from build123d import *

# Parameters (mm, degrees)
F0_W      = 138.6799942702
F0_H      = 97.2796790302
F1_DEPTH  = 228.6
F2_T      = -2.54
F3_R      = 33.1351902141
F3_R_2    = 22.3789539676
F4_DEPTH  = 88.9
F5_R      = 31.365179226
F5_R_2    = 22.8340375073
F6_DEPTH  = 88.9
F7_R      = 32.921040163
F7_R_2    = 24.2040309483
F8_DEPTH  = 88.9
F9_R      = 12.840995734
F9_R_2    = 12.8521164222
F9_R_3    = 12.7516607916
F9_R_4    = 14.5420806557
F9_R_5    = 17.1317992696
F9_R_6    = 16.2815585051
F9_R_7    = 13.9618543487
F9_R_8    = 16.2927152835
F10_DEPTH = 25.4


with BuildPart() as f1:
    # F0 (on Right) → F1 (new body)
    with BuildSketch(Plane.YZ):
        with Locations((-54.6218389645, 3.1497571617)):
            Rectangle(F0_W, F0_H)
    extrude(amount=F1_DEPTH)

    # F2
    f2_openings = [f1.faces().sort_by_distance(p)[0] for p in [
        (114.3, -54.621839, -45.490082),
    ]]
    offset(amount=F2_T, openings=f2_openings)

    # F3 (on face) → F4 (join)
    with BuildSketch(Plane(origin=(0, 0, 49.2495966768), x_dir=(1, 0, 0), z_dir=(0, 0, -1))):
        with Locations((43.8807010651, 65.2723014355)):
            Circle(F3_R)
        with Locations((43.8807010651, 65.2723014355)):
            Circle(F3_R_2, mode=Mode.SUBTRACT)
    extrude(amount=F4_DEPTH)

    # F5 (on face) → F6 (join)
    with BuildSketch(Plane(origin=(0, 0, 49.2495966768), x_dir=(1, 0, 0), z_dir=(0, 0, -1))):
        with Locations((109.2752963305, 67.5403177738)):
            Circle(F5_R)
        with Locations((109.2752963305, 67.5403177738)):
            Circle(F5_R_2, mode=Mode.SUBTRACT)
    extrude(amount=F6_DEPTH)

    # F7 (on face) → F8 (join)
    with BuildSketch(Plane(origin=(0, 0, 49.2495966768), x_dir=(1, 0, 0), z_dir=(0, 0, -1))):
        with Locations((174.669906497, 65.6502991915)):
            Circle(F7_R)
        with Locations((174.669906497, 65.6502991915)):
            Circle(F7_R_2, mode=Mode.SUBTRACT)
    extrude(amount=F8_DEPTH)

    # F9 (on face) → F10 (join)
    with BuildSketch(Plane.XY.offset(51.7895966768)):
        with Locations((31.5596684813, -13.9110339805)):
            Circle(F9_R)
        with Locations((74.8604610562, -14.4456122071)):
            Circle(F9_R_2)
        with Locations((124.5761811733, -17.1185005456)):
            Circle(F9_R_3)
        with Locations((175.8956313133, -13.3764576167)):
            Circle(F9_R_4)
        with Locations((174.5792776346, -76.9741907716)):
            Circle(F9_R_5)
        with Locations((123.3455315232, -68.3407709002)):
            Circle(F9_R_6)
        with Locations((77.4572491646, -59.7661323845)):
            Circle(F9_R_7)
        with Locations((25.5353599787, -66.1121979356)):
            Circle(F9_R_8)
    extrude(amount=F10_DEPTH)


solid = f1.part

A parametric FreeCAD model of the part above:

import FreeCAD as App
import Part
import Sketcher

V = App.Vector
Q = App.Units.Quantity


def faces_at(feature, points):
    """Names of the faces that lie closest to the given points."""
    faces = feature.Shape.Faces
    near = lambda p: min(range(len(faces)), key=lambda i: faces[i].distToShape(Part.Vertex(*p))[0])
    return sorted({f"Face{near(p) + 1}" for p in points})


def add_polygon(sketch, points):
    """Adds a closed chain of lines whose ends are joined by coincident constraints."""
    first, n = sketch.GeometryCount, len(points)
    for a, b in zip(points, points[1:] + points[:1]):
        sketch.addGeometry(Part.LineSegment(App.Vector(*a, 0), App.Vector(*b, 0)), False)
    for i in range(n):
        sketch.addConstraint(Sketcher.Constraint("Coincident", first + i, 2, first + (i + 1) % n, 1))

doc = App.newDocument("Part")
body = doc.addObject("PartDesign::Body", "Body")

sketch1 = body.newObject("Sketcher::SketchObject", "Sketch")
sketch1.AttachmentSupport = (doc.getObject("YZ_Plane"), [""])
sketch1.MapMode = "FlatFace"
add_polygon(sketch1, [(-123.961836, 51.789597), (-123.961836, -45.490082), (14.718158, -45.490082), (14.718158, 51.789597)])
sketch1.addConstraint(Sketcher.Constraint("Vertical", 0))
sketch1.addConstraint(Sketcher.Constraint("Horizontal", 1))
sketch1.addConstraint(Sketcher.Constraint("Vertical", 2))
sketch1.addConstraint(Sketcher.Constraint("Horizontal", 3))
sketch1.addConstraint(Sketcher.Constraint("DistanceY", 0, 2, 0, 1, 97.279679))
sketch1.addConstraint(Sketcher.Constraint("DistanceX", 1, 1, 1, 2, 138.679994))
sketch1.addConstraint(Sketcher.Constraint("DistanceX", -1, 1, 1, 2, 14.718158))
sketch1.addConstraint(Sketcher.Constraint("DistanceY", 0, 2, -1, 1, 45.490082))
pad1 = body.newObject("PartDesign::Pad", "Pad")
pad1.Profile = sketch1
pad1.Length = Q("9 in")
doc.recompute()

thickness = body.newObject("PartDesign::Thickness", "Thickness")
thickness.Base = (pad1, faces_at(pad1, [(114.3, -54.622, -45.49)]))
thickness.Value = Q("0.1 in")
thickness.Reversed = True
thickness.Join = "Arc"

sketch2 = body.newObject("Sketcher::SketchObject", "Sketch001")
sketch2.AttachmentSupport = (doc.getObject("XY_Plane"), [""])
sketch2.MapMode = "FlatFace"
sketch2.AttachmentOffset = App.Placement(V(0, 0, 49.249597), App.Rotation())
sketch2.addGeometry(Part.Circle(V(43.880701, -65.272301, 0), V(0, 0, 1), 33.13519), False)
sketch2.addGeometry(Part.Circle(V(43.880701, -65.272301, 0), V(0, 0, 1), 22.378954), False)
sketch2.addConstraint(Sketcher.Constraint("Coincident", 1, 3, 0, 3))
sketch2.addConstraint(Sketcher.Constraint("Diameter", 0, 66.27038))
sketch2.addConstraint(Sketcher.Constraint("Diameter", 1, 44.757908))
sketch2.addConstraint(Sketcher.Constraint("DistanceX", -1, 1, 0, 3, 43.880701))
sketch2.addConstraint(Sketcher.Constraint("DistanceY", 0, 3, -1, 1, 65.272301))
pad2 = body.newObject("PartDesign::Pad", "Pad001")
pad2.Profile = sketch2
pad2.Length = Q("3.5 in")
pad2.Reversed = True

sketch3 = body.newObject("Sketcher::SketchObject", "Sketch002")
sketch3.AttachmentSupport = (doc.getObject("XY_Plane"), [""])
sketch3.MapMode = "FlatFace"
sketch3.AttachmentOffset = App.Placement(V(0, 0, 49.249597), App.Rotation())
sketch3.addGeometry(Part.Circle(V(109.275296, -67.540318, 0), V(0, 0, 1), 31.365179), False)
sketch3.addGeometry(Part.Circle(V(109.275296, -67.540318, 0), V(0, 0, 1), 22.834038), False)
sketch3.addConstraint(Sketcher.Constraint("Coincident", 1, 3, 0, 3))
sketch3.addConstraint(Sketcher.Constraint("Diameter", 0, 62.730358))
sketch3.addConstraint(Sketcher.Constraint("Diameter", 1, 45.668075))
sketch3.addConstraint(Sketcher.Constraint("DistanceX", -1, 1, 0, 3, 109.275296))
sketch3.addConstraint(Sketcher.Constraint("DistanceY", 0, 3, -1, 1, 67.540318))
pad3 = body.newObject("PartDesign::Pad", "Pad002")
pad3.Profile = sketch3
pad3.Length = Q("3.5 in")
pad3.Reversed = True

sketch4 = body.newObject("Sketcher::SketchObject", "Sketch003")
sketch4.AttachmentSupport = (doc.getObject("XY_Plane"), [""])
sketch4.MapMode = "FlatFace"
sketch4.AttachmentOffset = App.Placement(V(0, 0, 49.249597), App.Rotation())
sketch4.addGeometry(Part.Circle(V(174.669906, -65.650299, 0), V(0, 0, 1), 32.92104), False)
sketch4.addGeometry(Part.Circle(V(174.669906, -65.650299, 0), V(0, 0, 1), 24.204031), False)
sketch4.addConstraint(Sketcher.Constraint("Coincident", 1, 3, 0, 3))
sketch4.addConstraint(Sketcher.Constraint("Diameter", 0, 65.84208))
sketch4.addConstraint(Sketcher.Constraint("Diameter", 1, 48.408062))
sketch4.addConstraint(Sketcher.Constraint("DistanceY", 0, 3, -1, 1, 65.650299))
sketch4.addConstraint(Sketcher.Constraint("DistanceX", -1, 1, 0, 3, 174.669906))
pad4 = body.newObject("PartDesign::Pad", "Pad003")
pad4.Profile = sketch4
pad4.Length = Q("3.5 in")
pad4.Reversed = True

sketch5 = body.newObject("Sketcher::SketchObject", "Sketch004")
sketch5.AttachmentSupport = (doc.getObject("XY_Plane"), [""])
sketch5.MapMode = "FlatFace"
sketch5.AttachmentOffset = App.Placement(V(0, 0, 51.789597), App.Rotation())
sketch5.addGeometry(Part.Circle(V(31.559668, -13.911034, 0), V(0, 0, 1), 12.840996), False)
sketch5.addGeometry(Part.Circle(V(74.860461, -14.445612, 0), V(0, 0, 1), 12.852116), False)
sketch5.addGeometry(Part.Circle(V(124.576181, -17.118501, 0), V(0, 0, 1), 12.751661), False)
sketch5.addGeometry(Part.Circle(V(175.895631, -13.376458, 0), V(0, 0, 1), 14.542081), False)
sketch5.addGeometry(Part.Circle(V(174.579278, -76.974191, 0), V(0, 0, 1), 17.131799), False)
sketch5.addGeometry(Part.Circle(V(123.345532, -68.340771, 0), V(0, 0, 1), 16.281559), False)
sketch5.addGeometry(Part.Circle(V(77.457249, -59.766132, 0), V(0, 0, 1), 13.961854), False)
sketch5.addGeometry(Part.Circle(V(25.53536, -66.112198, 0), V(0, 0, 1), 16.292715), False)
sketch5.addConstraint(Sketcher.Constraint("Diameter", 4, 34.263599))
sketch5.addConstraint(Sketcher.Constraint("Diameter", 0, 25.681991))
sketch5.addConstraint(Sketcher.Constraint("Diameter", 2, 25.503322))
sketch5.addConstraint(Sketcher.Constraint("Diameter", 3, 29.084161))
sketch5.addConstraint(Sketcher.Constraint("Diameter", 6, 27.923709))
sketch5.addConstraint(Sketcher.Constraint("Diameter", 7, 32.585431))
sketch5.addConstraint(Sketcher.Constraint("Diameter", 1, 25.704233))
sketch5.addConstraint(Sketcher.Constraint("Diameter", 5, 32.563117))
sketch5.addConstraint(Sketcher.Constraint("DistanceX", -1, 1, 4, 3, Q("6.8731999 in")))
sketch5.addConstraint(Sketcher.Constraint("DistanceY", 2, 3, -1, 1, 17.118501))
sketch5.addConstraint(Sketcher.Constraint("DistanceX", 5, 3, 3, 3, 52.5501))
sketch5.addConstraint(Sketcher.Constraint("DistanceY", 6, 3, 0, 3, 45.855098))
sketch5.addConstraint(Sketcher.Constraint("DistanceX", 7, 3, 1, 3, 49.325101))
sketch5.addConstraint(Sketcher.Constraint("DistanceX", -1, 1, 0, 3, 31.559668))
sketch5.addConstraint(Sketcher.Constraint("DistanceX", -1, 1, 1, 3, 74.860461))
sketch5.addConstraint(Sketcher.Constraint("DistanceX", -1, 1, 2, 3, 124.576181))
sketch5.addConstraint(Sketcher.Constraint("DistanceX", -1, 1, 3, 3, 175.895631))
sketch5.addConstraint(Sketcher.Constraint("DistanceY", 4, 3, -1, 1, 76.974191))
sketch5.addConstraint(Sketcher.Constraint("DistanceY", 5, 3, -1, 1, 68.340771))
sketch5.addConstraint(Sketcher.Constraint("DistanceX", -1, 1, 6, 3, 77.457249))
sketch5.addConstraint(Sketcher.Constraint("DistanceY", 1, 3, 0, 3, 0.534578))
sketch5.addConstraint(Sketcher.Constraint("DistanceY", 2, 3, 1, 3, 2.672888))
sketch5.addConstraint(Sketcher.Constraint("DistanceY", 3, 3, -1, 1, 13.376458))
sketch5.addConstraint(Sketcher.Constraint("DistanceY", 7, 3, -1, 1, 66.112198))
pad5 = body.newObject("PartDesign::Pad", "Pad004")
pad5.Profile = sketch5
pad5.Length = Q("1 in")

doc.recompute()
